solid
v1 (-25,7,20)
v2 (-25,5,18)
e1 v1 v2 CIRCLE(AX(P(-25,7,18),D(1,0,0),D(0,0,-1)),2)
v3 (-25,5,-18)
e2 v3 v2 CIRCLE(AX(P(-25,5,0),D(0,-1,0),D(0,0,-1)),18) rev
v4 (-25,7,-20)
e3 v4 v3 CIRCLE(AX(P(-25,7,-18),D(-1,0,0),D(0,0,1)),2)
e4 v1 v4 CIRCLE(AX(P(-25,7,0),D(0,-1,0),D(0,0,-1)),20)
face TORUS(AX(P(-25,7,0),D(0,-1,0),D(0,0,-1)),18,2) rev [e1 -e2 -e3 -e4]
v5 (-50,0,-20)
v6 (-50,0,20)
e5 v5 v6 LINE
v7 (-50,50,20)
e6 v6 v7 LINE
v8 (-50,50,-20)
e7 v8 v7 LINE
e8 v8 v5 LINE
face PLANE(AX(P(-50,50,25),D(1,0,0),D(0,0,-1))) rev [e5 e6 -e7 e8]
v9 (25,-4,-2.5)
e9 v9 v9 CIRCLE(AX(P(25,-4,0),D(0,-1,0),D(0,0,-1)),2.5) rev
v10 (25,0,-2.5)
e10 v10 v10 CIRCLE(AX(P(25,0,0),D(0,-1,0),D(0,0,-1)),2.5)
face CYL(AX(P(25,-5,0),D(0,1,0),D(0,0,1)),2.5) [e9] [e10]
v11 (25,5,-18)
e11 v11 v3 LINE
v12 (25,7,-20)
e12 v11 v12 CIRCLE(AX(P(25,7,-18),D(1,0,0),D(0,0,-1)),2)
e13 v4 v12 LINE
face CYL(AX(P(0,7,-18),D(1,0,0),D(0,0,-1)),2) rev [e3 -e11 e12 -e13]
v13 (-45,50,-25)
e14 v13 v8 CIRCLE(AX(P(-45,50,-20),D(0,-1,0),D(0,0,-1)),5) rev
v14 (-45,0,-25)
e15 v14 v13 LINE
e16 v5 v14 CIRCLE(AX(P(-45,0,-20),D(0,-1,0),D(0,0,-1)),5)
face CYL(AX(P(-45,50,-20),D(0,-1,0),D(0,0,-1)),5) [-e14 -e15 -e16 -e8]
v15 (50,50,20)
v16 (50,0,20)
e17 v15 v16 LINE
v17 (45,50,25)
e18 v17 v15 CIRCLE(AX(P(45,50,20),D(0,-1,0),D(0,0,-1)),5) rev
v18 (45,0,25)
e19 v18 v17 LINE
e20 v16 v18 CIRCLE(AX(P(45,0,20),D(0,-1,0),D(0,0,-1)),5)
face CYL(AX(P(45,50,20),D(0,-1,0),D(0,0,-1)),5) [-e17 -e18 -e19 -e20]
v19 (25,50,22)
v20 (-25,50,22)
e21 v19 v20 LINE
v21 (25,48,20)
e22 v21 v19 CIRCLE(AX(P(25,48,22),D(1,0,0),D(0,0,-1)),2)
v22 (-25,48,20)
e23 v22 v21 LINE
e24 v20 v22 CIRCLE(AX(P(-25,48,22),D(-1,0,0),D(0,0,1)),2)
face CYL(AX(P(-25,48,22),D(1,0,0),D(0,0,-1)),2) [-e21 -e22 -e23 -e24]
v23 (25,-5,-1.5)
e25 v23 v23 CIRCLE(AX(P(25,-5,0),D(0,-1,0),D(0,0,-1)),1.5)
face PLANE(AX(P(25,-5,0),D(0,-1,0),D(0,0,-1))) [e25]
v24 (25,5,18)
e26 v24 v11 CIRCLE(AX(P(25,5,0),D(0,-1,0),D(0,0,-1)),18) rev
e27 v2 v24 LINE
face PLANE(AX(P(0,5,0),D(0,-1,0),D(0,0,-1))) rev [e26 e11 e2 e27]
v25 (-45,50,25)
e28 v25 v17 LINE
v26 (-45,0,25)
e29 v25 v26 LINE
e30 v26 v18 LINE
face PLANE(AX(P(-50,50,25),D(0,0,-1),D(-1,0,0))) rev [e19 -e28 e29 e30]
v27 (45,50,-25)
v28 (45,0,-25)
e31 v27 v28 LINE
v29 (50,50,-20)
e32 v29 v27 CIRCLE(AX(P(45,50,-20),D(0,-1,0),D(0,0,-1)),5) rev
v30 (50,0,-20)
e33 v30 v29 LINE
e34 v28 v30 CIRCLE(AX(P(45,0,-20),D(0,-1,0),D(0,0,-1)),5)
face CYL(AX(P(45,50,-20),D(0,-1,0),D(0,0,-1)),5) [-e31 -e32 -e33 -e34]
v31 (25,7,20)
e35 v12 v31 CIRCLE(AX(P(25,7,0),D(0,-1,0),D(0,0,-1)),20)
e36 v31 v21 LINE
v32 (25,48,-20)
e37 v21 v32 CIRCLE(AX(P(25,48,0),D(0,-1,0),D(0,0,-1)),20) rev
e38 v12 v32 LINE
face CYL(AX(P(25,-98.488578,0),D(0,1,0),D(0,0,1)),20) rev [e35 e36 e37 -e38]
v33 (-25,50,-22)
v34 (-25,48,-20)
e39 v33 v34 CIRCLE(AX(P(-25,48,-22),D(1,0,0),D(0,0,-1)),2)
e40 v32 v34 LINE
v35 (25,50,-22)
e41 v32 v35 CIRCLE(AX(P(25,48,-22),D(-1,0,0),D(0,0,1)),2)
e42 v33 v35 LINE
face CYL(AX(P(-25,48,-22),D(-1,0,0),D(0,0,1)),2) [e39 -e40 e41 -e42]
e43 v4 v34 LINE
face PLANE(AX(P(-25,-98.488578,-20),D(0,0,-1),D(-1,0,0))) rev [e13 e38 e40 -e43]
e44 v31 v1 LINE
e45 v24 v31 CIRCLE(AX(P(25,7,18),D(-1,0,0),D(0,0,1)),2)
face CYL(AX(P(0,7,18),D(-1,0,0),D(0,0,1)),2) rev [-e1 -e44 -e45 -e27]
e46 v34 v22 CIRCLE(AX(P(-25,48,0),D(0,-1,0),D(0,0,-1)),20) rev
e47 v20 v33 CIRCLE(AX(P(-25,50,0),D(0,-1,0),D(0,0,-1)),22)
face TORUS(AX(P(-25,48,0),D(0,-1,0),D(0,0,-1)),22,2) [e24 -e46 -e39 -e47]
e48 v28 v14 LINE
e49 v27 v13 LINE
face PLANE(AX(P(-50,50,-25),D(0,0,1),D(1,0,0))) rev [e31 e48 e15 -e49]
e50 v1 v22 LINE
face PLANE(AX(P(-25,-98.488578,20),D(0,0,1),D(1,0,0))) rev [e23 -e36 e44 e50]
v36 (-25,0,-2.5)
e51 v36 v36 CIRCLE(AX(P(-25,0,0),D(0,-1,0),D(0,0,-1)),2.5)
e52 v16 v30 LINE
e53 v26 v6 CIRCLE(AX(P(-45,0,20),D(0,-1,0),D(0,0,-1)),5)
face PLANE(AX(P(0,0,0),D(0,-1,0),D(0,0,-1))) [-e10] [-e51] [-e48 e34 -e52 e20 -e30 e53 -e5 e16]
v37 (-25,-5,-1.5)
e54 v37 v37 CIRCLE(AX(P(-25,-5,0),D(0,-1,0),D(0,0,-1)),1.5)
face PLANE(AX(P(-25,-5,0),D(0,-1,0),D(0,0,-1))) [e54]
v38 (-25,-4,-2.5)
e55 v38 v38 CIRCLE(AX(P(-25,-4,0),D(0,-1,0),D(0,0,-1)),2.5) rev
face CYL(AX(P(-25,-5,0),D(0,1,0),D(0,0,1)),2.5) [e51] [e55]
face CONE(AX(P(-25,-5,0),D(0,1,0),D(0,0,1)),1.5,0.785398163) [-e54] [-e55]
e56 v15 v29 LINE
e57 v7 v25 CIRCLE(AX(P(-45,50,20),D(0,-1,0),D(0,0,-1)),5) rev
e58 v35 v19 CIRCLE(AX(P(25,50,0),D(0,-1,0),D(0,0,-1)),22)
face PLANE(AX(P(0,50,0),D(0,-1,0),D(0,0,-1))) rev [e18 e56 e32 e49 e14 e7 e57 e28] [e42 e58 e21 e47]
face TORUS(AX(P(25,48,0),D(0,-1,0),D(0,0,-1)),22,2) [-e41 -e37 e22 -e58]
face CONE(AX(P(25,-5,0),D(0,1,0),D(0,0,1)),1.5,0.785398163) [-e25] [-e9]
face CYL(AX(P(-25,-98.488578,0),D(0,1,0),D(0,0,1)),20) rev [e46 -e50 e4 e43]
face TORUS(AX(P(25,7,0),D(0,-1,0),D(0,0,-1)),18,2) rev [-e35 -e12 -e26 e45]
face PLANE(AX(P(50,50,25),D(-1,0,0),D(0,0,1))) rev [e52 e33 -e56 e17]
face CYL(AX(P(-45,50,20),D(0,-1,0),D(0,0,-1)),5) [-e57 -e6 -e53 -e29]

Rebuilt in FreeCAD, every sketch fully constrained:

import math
import FreeCAD as App
import Part
import Sketcher


def edges_at(feature, points):
    """Names of the edges that pass closest to the given points."""
    edges = feature.Shape.Edges
    near = lambda p: min(range(len(edges)), key=lambda i: edges[i].distToShape(Part.Vertex(*p))[0])
    return sorted({f"Edge{near(p) + 1}" for p in points})


def add_polygon(sketch, points):
    """Adds a closed chain of lines whose ends are joined by coincident constraints."""
    first, n = sketch.GeometryCount, len(points)
    for a, b in zip(points, points[1:] + points[:1]):
        sketch.addGeometry(Part.LineSegment(App.Vector(*a, 0), App.Vector(*b, 0)), False)
    for i in range(n):
        sketch.addConstraint(Sketcher.Constraint("Coincident", first + i, 2, first + (i + 1) % n, 1))

doc = App.newDocument("Part")
params = doc.addObject("Spreadsheet::Sheet", "Params")
for row, (alias, value) in enumerate([
    ("sketch1_width", "100 mm"),
    ("sketch1_height", "50 mm"),
    ("pad1_length", "50 mm"),
    ("fillet_radius", "5 mm"),
    ("sketch2_diameter", "5 mm"),
    ("pad2_length", "5 mm"),
    ("chamfer_size", "1 mm"),
    ("sketch3_radius", "20 mm"),
    ("sketch3_width", "50 mm"),
    ("pocket1_length", "45 mm"),
    ("fillet2_radius", "2 mm"),
], start=1):
    params.set(f"A{row}", alias)
    params.set(f"B{row}", "=" + value)
    params.setAlias(f"B{row}", alias)

body = doc.addObject("PartDesign::Body", "Body")

# Sketch on XZ plane
sketch1 = body.newObject("Sketcher::SketchObject", "Sketch")
sketch1.AttachmentSupport = (doc.getObject("XZ_Plane"), [""])
sketch1.MapMode = "FlatFace"
add_polygon(sketch1, [(-50, -25), (-50, 25), (50, 25), (50, -25)])  # lines 0-3
sketch1.addConstraint(Sketcher.Constraint("Vertical", 0))
sketch1.addConstraint(Sketcher.Constraint("Horizontal", 1))
sketch1.addConstraint(Sketcher.Constraint("Vertical", 2))
sketch1.addConstraint(Sketcher.Constraint("Horizontal", 3))
sketch1.addConstraint(Sketcher.Constraint("Symmetric", 0, 2, 2, 2, -1, 1))
sketch1.addConstraint(Sketcher.Constraint("DistanceX", 1, 1, 1, 2, 100.0))
sketch1.addConstraint(Sketcher.Constraint("DistanceY", 0, 1, 0, 2, 50.0))
sketch1.setExpression("Constraints[9]", "Params.sketch1_width")
sketch1.setExpression("Constraints[10]", "Params.sketch1_height")
pad1 = body.newObject("PartDesign::Pad", "Pad")
pad1.Profile = sketch1
pad1.setExpression("Length", "Params.pad1_length")
pad1.Reversed = True
doc.recompute()

fillet = body.newObject("PartDesign::Fillet", "Fillet")
fillet.Base = (pad1, edges_at(pad1, [
    (50, 25, 25),
    (-50, 25, 25),
    (-50, 25, -25),
    (50, 25, -25),
]))
fillet.setExpression("Radius", "Params.fillet_radius")

# Sketch on XZ plane
sketch2 = body.newObject("Sketcher::SketchObject", "Sketch001")
sketch2.AttachmentSupport = (doc.getObject("XZ_Plane"), [""])
sketch2.MapMode = "FlatFace"
sketch2.addGeometry(Part.Circle(App.Vector(-25, 0, 0), App.Vector(0, 0, 1), 2.5), False)
sketch2.addGeometry(Part.Circle(App.Vector(25, 0, 0), App.Vector(0, 0, 1), 2.5), False)
sketch2.addConstraint(Sketcher.Constraint("Equal", 0, 1))
sketch2.addConstraint(Sketcher.Constraint("Symmetric", 0, 3, 1, 3, -1, 1))
sketch2.addConstraint(Sketcher.Constraint("PointOnObject", 0, 3, -1))
sketch2.addConstraint(Sketcher.Constraint("Diameter", 0, 5.0))
sketch2.addConstraint(Sketcher.Constraint("DistanceX", 0, 3, -1, 1, 25.0))
sketch2.setExpression("Constraints[3]", "Params.sketch2_diameter")
pad2 = body.newObject("PartDesign::Pad", "Pad001")
pad2.Profile = sketch2
pad2.setExpression("Length", "Params.pad2_length")
doc.recompute()

chamfer = body.newObject("PartDesign::Chamfer", "Chamfer")
chamfer.Base = (pad2, edges_at(pad2, [(-25, -5, 2.5), (25, -5, 2.5)]))
chamfer.setExpression("Size", "Params.chamfer_size")

# Sketch on XZ plane
sketch3 = body.newObject("Sketcher::SketchObject", "Sketch002")
sketch3.AttachmentSupport = (doc.getObject("XZ_Plane"), [""])
sketch3.MapMode = "FlatFace"
sketch3.AttachmentOffset = App.Placement(App.Vector(0, 0, -50), App.Rotation())
sketch3.addGeometry(Part.LineSegment(App.Vector(25, -20, 0), App.Vector(-25, -20, 0)), False)
sketch3.addGeometry(Part.ArcOfCircle(Part.Circle(App.Vector(-25, 0, 0), App.Vector(0, 0, 1), 20), math.radians(90), math.radians(270)), False)
sketch3.addGeometry(Part.LineSegment(App.Vector(-25, 20, 0), App.Vector(25, 20, 0)), False)
sketch3.addGeometry(Part.ArcOfCircle(Part.Circle(App.Vector(25, 0, 0), App.Vector(0, 0, 1), 20), math.radians(-90), math.radians(90)), False)
sketch3.addConstraint(Sketcher.Constraint("Tangent", 0, 2, 1, 2))
sketch3.addConstraint(Sketcher.Constraint("Tangent", 1, 1, 2, 1))
sketch3.addConstraint(Sketcher.Constraint("Tangent", 2, 2, 3, 2))
sketch3.addConstraint(Sketcher.Constraint("Tangent", 3, 1, 0, 1))
sketch3.addConstraint(Sketcher.Constraint("Horizontal", 0))
sketch3.addConstraint(Sketcher.Constraint("Horizontal", 2))
sketch3.addConstraint(Sketcher.Constraint("Symmetric", 1, 3, 3, 3, -1, 1))
sketch3.addConstraint(Sketcher.Constraint("Radius", 1, 20.0))
sketch3.addConstraint(Sketcher.Constraint("DistanceX", 0, 2, 0, 1, 50.0))
sketch3.setExpression("Constraints[7]", "Params.sketch3_radius")
sketch3.setExpression("Constraints[8]", "Params.sketch3_width")
pocket1 = body.newObject("PartDesign::Pocket", "Pocket")
pocket1.Profile = sketch3
pocket1.setExpression("Length", "Params.pocket1_length")
pocket1.Reversed = True
doc.recompute()

fillet2 = body.newObject("PartDesign::Fillet", "Fillet001")
fillet2.Base = (pocket1, edges_at(pocket1, [
    (-45, 50, 0),
    (0, 50, 20),
    (45, 50, 0),
    (0, 50, -20),
    (0, 5, 20),
    (45, 5, 0),
    (0, 5, -20),
    (-45, 5, 0),
]))
fillet2.setExpression("Radius", "Params.fillet2_radius")

doc.recompute()
